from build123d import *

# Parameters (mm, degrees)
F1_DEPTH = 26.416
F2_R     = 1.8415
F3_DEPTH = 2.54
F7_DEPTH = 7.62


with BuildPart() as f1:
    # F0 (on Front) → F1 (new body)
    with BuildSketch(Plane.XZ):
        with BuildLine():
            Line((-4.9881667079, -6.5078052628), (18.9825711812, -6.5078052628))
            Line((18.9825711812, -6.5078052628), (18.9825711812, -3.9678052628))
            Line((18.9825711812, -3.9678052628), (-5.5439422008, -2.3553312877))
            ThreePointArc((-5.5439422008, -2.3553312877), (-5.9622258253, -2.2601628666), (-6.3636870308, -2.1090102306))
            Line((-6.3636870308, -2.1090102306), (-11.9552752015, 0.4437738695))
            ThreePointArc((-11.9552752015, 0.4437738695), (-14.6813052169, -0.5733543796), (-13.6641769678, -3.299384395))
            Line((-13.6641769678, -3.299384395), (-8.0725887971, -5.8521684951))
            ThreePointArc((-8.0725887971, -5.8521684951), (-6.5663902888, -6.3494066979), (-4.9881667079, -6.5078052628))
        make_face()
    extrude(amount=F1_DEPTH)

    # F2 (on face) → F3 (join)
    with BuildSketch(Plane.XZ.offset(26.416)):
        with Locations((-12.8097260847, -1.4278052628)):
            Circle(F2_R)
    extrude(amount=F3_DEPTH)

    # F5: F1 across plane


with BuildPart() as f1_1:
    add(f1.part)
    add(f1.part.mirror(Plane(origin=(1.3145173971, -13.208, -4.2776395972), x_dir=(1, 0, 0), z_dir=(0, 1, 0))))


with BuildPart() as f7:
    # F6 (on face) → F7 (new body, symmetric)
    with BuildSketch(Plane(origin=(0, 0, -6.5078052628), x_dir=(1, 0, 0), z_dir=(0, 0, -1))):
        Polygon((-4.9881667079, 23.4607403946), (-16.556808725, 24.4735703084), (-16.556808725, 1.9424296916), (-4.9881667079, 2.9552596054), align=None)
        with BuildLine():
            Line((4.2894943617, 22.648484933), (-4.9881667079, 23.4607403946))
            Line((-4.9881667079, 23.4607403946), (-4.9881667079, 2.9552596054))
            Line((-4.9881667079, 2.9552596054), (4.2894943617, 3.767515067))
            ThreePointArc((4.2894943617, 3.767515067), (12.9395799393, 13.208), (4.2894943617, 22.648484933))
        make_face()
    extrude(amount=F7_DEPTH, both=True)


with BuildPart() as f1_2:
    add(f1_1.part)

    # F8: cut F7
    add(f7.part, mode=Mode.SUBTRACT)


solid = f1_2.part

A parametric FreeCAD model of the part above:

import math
import FreeCAD as App
import Part
import Sketcher
from FreeCAD import Vector
Q = App.Units.Quantity

doc = App.newDocument("Part")
body = doc.addObject("PartDesign::Body", "Body")

sketch1 = body.newObject("Sketcher::SketchObject", "Sketch")
sketch1.AttachmentSupport = (doc.getObject("XZ_Plane"), [""])
sketch1.MapMode = "FlatFace"
sketch1.addGeometry(Part.LineSegment(Vector(-5, -6.5, 0), Vector(19, -6.5, 0)), False)
sketch1.addGeometry(Part.LineSegment(Vector(19, -6.5, 0), Vector(19, -4, 0)), False)
sketch1.addGeometry(Part.LineSegment(Vector(19, -4, 0), Vector(-5.5, -2.4, 0)), False)
sketch1.addGeometry(Part.ArcOfCircle(Part.Circle(Vector(-5.1, 0.8, 0), Vector(0, 0, 1), 3.1), math.radians(-114.54), math.radians(-98.91)), False)
sketch1.addGeometry(Part.LineSegment(Vector(-6.4, -2.1, 0), Vector(-12, 0.4, 0)), False)
sketch1.addGeometry(Part.ArcOfCircle(Part.Circle(Vector(-12.8, -1.4, 0), Vector(0, 0, 1), 2.1), math.radians(65), math.radians(245)), False)
sketch1.addGeometry(Part.LineSegment(Vector(-13.7, -3.3, 0), Vector(-8.1, -5.9, 0)), False)
sketch1.addGeometry(Part.ArcOfCircle(Part.Circle(Vector(-5.1, 0.8, 0), Vector(0, 0, 1), 7.3), math.radians(-115), math.radians(-89)), False)
sketch1.addConstraint(Sketcher.Constraint("Coincident", 0, 2, 1, 1))
sketch1.addConstraint(Sketcher.Constraint("Coincident", 1, 2, 2, 1))
sketch1.addConstraint(Sketcher.Constraint("Coincident", 2, 2, 3, 2))
sketch1.addConstraint(Sketcher.Constraint("Tangent", 3, 1, 4, 1))
sketch1.addConstraint(Sketcher.Constraint("Tangent", 4, 2, 5, 1))
sketch1.addConstraint(Sketcher.Constraint("Tangent", 5, 2, 6, 1))
sketch1.addConstraint(Sketcher.Constraint("Tangent", 6, 2, 7, 1))
sketch1.addConstraint(Sketcher.Constraint("Coincident", 7, 2, 0, 1))
sketch1.addConstraint(Sketcher.Constraint("Horizontal", 0))
sketch1.addConstraint(Sketcher.Constraint("Vertical", 1))
sketch1.addConstraint(Sketcher.Constraint("Coincident", 7, 3, 3, 3))
sketch1.addConstraint(Sketcher.Constraint("Parallel", 4, 6))
sketch1.addConstraint(Sketcher.Constraint("DistanceY", 1, 1, 1, 2, Q("0.1 in")))
sketch1.addConstraint(Sketcher.Constraint("Radius", 5, Q("0.081 in")))
sketch1.addConstraint(Sketcher.Constraint("DistanceY", 0, 2, 5, 3, Q("0.2 in")))
sketch1.addConstraint(Sketcher.Constraint("Radius", 3, Q("3.147922 mm")))
sketch1.addConstraint(Sketcher.Constraint("DistanceX", 5, 2, 4, 2, Q("1.708902 mm")))
sketch1.addConstraint(Sketcher.Constraint("Distance", 2, Q("24.579462 mm")))
sketch1.addConstraint(Sketcher.Constraint("DistanceX", 0, 1, 0, 2, Q("23.970738 mm")))
sketch1.addConstraint(Sketcher.Constraint("DistanceX", -1, 1, 0, 2, Q("18.982571 mm")))
sketch1.addConstraint(Sketcher.Constraint("DistanceY", 2, 2, -1, 1, Q("2.355331 mm")))
sketch1.addConstraint(Sketcher.Constraint("DistanceY", 3, 1, -1, 1, Q("2.10901 mm")))
pad1 = body.newObject("PartDesign::Pad", "Pad")
pad1.Profile = sketch1
pad1.Length = Q("1.04 in")

sketch2 = body.newObject("Sketcher::SketchObject", "Sketch001")
sketch2.AttachmentSupport = (doc.getObject("XZ_Plane"), [""])
sketch2.MapMode = "FlatFace"
sketch2.AttachmentOffset = App.Placement(Vector(0, 0, 1.04 * 25.4), App.Rotation())
sketch2.addGeometry(Part.Circle(Vector(-12.8, -1.4, 0), Vector(0, 0, 1), 1.8), False)
sketch2.addConstraint(Sketcher.Constraint("Diameter", 0, Q("0.145 in")))
sketch2.addConstraint(Sketcher.Constraint("DistanceX", 0, 3, -1, 1, Q("12.809726 mm")))
sketch2.addConstraint(Sketcher.Constraint("DistanceY", 0, 3, -1, 1, Q("1.427805 mm")))
pad2 = body.newObject("PartDesign::Pad", "Pad001")
pad2.Profile = sketch2
pad2.Length = Q("0.1 in")
body2 = doc.addObject("PartDesign::Body", "Body001")
doc.recompute()

body2.BaseFeature = body
doc.recompute()

mirroring = doc.addObject("Part::Mirroring", "Mirroring")
mirroring.Source = body
mirroring.Base = Vector(1.314517, -13.208, -4.27764)
mirroring.Normal = Vector(0, 1, 0)
body3 = doc.addObject("PartDesign::Body", "Body002")
body3.BaseFeature = mirroring
boolean = body2.newObject("PartDesign::Boolean", "Boolean")
boolean.Type = "Fuse"
boolean.addObjects([body3])
doc.recompute()
body4 = doc.addObject("PartDesign::Body", "Body003")

sketch3 = body4.newObject("Sketcher::SketchObject", "Sketch002")
sketch3.AttachmentSupport = (doc.getObject("XY_Plane003"), [""])
sketch3.MapMode = "FlatFace"
sketch3.AttachmentOffset = App.Placement(Vector(0, 0, -6.507805), App.Rotation())
sketch3.addGeometry(Part.LineSegment(Vector(-5, -23, 0), Vector(-17, -24, 0)), False)
sketch3.addGeometry(Part.LineSegment(Vector(-17, -24, 0), Vector(-17, -2, 0)), False)
sketch3.addGeometry(Part.LineSegment(Vector(-17, -2, 0), Vector(-5, -3, 0)), False)
sketch3.addGeometry(Part.LineSegment(Vector(-5, -3, 0), Vector(4, -4, 0)), False)
sketch3.addGeometry(Part.ArcOfCircle(Part.Circle(Vector(3, -13, 0), Vector(0, 0, 1), 9), math.radians(-85), math.radians(85)), False)
sketch3.addGeometry(Part.LineSegment(Vector(4, -23, 0), Vector(-5, -23, 0)), False)
sketch3.addConstraint(Sketcher.Constraint("Coincident", 0, 2, 1, 1))
sketch3.addConstraint(Sketcher.Constraint("Coincident", 1, 2, 2, 1))
sketch3.addConstraint(Sketcher.Constraint("Coincident", 2, 2, 3, 1))
sketch3.addConstraint(Sketcher.Constraint("Tangent", 3, 2, 4, 2))
sketch3.addConstraint(Sketcher.Constraint("Tangent", 4, 1, 5, 1))
sketch3.addConstraint(Sketcher.Constraint("Coincident", 5, 2, 0, 1))
sketch3.addConstraint(Sketcher.Constraint("Vertical", 1))
sketch3.addConstraint(Sketcher.Constraint("Parallel", 2, 3))
sketch3.addConstraint(Sketcher.Constraint("Parallel", 0, 5))
sketch3.addConstraint(Sketcher.Constraint("Vertical", 3, 2, 4, 1))
sketch3.addConstraint(Sketcher.Constraint("Vertical", 2, 2, 5, 2))
sketch3.addConstraint(Sketcher.Constraint("DistanceY", 4, 3, -1, 1, Q("0.52 in")))
sketch3.addConstraint(Sketcher.Constraint("Radius", 4, Q("9.476596 mm")))
sketch3.addConstraint(Sketcher.Constraint("DistanceY", 1, 1, 1, 2, Q("22.531141 mm")))
sketch3.addConstraint(Sketcher.Constraint("Distance", 3, Q("9.31315 mm")))
sketch3.addConstraint(Sketcher.Constraint("DistanceX", 0, 2, -1, 1, Q("16.556809 mm")))
sketch3.addConstraint(Sketcher.Constraint("DistanceY", 2, 2, -1, 1, Q("2.95526 mm")))
pad3 = body4.newObject("PartDesign::Pad", "Pad002")
pad3.Profile = sketch3
pad3.Length = Q("0.6 in")
pad3.Midplane = True
doc.recompute()

boolean2 = body2.newObject("PartDesign::Boolean", "Boolean001")
boolean2.Type = "Cut"
boolean2.addObjects([body4])
mirroring.Visibility = False

doc.recompute()
